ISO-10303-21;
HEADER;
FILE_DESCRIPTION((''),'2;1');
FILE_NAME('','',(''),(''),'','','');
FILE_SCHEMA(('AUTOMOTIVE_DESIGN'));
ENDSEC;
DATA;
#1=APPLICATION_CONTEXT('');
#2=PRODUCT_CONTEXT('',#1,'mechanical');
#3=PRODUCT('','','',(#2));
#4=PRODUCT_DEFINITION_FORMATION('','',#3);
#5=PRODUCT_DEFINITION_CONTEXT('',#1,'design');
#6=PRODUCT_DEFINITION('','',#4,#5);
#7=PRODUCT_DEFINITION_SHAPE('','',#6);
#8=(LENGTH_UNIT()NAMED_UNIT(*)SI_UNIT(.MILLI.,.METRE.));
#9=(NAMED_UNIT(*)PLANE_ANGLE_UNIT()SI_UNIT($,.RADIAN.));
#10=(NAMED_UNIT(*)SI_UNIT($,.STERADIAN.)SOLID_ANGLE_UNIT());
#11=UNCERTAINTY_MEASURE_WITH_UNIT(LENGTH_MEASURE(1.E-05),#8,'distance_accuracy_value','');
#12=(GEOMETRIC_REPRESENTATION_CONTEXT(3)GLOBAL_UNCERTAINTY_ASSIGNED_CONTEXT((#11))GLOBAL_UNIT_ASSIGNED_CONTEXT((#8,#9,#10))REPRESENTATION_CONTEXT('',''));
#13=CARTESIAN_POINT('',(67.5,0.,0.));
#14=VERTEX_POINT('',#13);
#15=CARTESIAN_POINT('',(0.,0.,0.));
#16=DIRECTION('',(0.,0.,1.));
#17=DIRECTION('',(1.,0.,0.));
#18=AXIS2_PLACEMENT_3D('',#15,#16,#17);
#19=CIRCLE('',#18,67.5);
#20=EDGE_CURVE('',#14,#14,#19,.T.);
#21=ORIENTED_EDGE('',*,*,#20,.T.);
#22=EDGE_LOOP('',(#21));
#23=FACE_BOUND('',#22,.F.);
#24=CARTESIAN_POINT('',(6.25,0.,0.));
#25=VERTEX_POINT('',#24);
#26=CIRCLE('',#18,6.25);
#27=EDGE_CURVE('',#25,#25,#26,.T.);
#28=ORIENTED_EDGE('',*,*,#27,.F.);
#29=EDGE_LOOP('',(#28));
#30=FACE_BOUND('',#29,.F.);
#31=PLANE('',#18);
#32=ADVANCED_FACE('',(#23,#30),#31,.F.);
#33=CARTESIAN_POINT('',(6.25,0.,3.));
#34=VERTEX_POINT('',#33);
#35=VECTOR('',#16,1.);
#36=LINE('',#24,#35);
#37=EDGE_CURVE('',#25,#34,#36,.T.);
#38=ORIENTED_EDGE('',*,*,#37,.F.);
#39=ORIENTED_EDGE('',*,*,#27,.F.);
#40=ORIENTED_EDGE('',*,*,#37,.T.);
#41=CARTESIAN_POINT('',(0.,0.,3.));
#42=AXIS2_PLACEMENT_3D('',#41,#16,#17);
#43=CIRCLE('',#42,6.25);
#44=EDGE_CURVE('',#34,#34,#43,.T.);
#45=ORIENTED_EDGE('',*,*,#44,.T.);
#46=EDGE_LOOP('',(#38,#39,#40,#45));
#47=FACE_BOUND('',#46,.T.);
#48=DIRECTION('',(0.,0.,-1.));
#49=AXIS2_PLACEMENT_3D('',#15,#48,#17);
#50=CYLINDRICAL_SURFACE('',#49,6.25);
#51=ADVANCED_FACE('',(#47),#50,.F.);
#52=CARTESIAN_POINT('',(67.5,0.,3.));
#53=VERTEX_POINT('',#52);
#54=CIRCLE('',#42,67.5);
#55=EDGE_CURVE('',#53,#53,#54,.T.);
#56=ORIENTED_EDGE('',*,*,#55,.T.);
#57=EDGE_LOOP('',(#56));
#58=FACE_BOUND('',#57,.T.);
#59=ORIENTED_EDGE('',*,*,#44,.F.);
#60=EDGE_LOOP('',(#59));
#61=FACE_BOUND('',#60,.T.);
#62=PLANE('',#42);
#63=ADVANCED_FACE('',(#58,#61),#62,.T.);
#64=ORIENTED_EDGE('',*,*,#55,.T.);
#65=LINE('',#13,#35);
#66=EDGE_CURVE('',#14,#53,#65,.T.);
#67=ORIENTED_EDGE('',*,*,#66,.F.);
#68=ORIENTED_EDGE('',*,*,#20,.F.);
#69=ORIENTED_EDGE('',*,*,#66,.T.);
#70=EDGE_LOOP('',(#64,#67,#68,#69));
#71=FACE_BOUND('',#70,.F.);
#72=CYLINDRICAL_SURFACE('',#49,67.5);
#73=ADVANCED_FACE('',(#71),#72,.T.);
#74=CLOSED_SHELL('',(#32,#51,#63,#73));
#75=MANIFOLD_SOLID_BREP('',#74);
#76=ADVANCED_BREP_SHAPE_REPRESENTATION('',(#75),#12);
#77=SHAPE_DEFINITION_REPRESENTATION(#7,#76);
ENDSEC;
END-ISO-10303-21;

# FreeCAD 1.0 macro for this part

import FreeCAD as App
import Part
import Sketcher
from FreeCAD import Vector
Q = App.Units.Quantity

doc = App.newDocument("Part")
body = doc.addObject("PartDesign::Body", "Body")

# Sketch on XY plane
sketch1 = body.newObject("Sketcher::SketchObject", "Sketch")
sketch1.AttachmentSupport = (doc.getObject("XY_Plane"), [""])
sketch1.MapMode = "FlatFace"
sketch1.addGeometry(Part.Circle(Vector(0, 0, 0), Vector(0, 0, 1), 68), False)
sketch1.addGeometry(Part.Circle(Vector(0, 0, 0), Vector(0, 0, 1), 6), False)
sketch1.addConstraint(Sketcher.Constraint("Coincident", 0, 3, -1, 1))
sketch1.addConstraint(Sketcher.Constraint("Coincident", 1, 3, -1, 1))
sketch1.addConstraint(Sketcher.Constraint("Diameter", 0, Q("135 mm")))
sketch1.addConstraint(Sketcher.Constraint("Diameter", 1, Q("12.5 mm")))
pad1 = body.newObject("PartDesign::Pad", "Pad")
pad1.Profile = sketch1
pad1.Length = 3

doc.recompute()
